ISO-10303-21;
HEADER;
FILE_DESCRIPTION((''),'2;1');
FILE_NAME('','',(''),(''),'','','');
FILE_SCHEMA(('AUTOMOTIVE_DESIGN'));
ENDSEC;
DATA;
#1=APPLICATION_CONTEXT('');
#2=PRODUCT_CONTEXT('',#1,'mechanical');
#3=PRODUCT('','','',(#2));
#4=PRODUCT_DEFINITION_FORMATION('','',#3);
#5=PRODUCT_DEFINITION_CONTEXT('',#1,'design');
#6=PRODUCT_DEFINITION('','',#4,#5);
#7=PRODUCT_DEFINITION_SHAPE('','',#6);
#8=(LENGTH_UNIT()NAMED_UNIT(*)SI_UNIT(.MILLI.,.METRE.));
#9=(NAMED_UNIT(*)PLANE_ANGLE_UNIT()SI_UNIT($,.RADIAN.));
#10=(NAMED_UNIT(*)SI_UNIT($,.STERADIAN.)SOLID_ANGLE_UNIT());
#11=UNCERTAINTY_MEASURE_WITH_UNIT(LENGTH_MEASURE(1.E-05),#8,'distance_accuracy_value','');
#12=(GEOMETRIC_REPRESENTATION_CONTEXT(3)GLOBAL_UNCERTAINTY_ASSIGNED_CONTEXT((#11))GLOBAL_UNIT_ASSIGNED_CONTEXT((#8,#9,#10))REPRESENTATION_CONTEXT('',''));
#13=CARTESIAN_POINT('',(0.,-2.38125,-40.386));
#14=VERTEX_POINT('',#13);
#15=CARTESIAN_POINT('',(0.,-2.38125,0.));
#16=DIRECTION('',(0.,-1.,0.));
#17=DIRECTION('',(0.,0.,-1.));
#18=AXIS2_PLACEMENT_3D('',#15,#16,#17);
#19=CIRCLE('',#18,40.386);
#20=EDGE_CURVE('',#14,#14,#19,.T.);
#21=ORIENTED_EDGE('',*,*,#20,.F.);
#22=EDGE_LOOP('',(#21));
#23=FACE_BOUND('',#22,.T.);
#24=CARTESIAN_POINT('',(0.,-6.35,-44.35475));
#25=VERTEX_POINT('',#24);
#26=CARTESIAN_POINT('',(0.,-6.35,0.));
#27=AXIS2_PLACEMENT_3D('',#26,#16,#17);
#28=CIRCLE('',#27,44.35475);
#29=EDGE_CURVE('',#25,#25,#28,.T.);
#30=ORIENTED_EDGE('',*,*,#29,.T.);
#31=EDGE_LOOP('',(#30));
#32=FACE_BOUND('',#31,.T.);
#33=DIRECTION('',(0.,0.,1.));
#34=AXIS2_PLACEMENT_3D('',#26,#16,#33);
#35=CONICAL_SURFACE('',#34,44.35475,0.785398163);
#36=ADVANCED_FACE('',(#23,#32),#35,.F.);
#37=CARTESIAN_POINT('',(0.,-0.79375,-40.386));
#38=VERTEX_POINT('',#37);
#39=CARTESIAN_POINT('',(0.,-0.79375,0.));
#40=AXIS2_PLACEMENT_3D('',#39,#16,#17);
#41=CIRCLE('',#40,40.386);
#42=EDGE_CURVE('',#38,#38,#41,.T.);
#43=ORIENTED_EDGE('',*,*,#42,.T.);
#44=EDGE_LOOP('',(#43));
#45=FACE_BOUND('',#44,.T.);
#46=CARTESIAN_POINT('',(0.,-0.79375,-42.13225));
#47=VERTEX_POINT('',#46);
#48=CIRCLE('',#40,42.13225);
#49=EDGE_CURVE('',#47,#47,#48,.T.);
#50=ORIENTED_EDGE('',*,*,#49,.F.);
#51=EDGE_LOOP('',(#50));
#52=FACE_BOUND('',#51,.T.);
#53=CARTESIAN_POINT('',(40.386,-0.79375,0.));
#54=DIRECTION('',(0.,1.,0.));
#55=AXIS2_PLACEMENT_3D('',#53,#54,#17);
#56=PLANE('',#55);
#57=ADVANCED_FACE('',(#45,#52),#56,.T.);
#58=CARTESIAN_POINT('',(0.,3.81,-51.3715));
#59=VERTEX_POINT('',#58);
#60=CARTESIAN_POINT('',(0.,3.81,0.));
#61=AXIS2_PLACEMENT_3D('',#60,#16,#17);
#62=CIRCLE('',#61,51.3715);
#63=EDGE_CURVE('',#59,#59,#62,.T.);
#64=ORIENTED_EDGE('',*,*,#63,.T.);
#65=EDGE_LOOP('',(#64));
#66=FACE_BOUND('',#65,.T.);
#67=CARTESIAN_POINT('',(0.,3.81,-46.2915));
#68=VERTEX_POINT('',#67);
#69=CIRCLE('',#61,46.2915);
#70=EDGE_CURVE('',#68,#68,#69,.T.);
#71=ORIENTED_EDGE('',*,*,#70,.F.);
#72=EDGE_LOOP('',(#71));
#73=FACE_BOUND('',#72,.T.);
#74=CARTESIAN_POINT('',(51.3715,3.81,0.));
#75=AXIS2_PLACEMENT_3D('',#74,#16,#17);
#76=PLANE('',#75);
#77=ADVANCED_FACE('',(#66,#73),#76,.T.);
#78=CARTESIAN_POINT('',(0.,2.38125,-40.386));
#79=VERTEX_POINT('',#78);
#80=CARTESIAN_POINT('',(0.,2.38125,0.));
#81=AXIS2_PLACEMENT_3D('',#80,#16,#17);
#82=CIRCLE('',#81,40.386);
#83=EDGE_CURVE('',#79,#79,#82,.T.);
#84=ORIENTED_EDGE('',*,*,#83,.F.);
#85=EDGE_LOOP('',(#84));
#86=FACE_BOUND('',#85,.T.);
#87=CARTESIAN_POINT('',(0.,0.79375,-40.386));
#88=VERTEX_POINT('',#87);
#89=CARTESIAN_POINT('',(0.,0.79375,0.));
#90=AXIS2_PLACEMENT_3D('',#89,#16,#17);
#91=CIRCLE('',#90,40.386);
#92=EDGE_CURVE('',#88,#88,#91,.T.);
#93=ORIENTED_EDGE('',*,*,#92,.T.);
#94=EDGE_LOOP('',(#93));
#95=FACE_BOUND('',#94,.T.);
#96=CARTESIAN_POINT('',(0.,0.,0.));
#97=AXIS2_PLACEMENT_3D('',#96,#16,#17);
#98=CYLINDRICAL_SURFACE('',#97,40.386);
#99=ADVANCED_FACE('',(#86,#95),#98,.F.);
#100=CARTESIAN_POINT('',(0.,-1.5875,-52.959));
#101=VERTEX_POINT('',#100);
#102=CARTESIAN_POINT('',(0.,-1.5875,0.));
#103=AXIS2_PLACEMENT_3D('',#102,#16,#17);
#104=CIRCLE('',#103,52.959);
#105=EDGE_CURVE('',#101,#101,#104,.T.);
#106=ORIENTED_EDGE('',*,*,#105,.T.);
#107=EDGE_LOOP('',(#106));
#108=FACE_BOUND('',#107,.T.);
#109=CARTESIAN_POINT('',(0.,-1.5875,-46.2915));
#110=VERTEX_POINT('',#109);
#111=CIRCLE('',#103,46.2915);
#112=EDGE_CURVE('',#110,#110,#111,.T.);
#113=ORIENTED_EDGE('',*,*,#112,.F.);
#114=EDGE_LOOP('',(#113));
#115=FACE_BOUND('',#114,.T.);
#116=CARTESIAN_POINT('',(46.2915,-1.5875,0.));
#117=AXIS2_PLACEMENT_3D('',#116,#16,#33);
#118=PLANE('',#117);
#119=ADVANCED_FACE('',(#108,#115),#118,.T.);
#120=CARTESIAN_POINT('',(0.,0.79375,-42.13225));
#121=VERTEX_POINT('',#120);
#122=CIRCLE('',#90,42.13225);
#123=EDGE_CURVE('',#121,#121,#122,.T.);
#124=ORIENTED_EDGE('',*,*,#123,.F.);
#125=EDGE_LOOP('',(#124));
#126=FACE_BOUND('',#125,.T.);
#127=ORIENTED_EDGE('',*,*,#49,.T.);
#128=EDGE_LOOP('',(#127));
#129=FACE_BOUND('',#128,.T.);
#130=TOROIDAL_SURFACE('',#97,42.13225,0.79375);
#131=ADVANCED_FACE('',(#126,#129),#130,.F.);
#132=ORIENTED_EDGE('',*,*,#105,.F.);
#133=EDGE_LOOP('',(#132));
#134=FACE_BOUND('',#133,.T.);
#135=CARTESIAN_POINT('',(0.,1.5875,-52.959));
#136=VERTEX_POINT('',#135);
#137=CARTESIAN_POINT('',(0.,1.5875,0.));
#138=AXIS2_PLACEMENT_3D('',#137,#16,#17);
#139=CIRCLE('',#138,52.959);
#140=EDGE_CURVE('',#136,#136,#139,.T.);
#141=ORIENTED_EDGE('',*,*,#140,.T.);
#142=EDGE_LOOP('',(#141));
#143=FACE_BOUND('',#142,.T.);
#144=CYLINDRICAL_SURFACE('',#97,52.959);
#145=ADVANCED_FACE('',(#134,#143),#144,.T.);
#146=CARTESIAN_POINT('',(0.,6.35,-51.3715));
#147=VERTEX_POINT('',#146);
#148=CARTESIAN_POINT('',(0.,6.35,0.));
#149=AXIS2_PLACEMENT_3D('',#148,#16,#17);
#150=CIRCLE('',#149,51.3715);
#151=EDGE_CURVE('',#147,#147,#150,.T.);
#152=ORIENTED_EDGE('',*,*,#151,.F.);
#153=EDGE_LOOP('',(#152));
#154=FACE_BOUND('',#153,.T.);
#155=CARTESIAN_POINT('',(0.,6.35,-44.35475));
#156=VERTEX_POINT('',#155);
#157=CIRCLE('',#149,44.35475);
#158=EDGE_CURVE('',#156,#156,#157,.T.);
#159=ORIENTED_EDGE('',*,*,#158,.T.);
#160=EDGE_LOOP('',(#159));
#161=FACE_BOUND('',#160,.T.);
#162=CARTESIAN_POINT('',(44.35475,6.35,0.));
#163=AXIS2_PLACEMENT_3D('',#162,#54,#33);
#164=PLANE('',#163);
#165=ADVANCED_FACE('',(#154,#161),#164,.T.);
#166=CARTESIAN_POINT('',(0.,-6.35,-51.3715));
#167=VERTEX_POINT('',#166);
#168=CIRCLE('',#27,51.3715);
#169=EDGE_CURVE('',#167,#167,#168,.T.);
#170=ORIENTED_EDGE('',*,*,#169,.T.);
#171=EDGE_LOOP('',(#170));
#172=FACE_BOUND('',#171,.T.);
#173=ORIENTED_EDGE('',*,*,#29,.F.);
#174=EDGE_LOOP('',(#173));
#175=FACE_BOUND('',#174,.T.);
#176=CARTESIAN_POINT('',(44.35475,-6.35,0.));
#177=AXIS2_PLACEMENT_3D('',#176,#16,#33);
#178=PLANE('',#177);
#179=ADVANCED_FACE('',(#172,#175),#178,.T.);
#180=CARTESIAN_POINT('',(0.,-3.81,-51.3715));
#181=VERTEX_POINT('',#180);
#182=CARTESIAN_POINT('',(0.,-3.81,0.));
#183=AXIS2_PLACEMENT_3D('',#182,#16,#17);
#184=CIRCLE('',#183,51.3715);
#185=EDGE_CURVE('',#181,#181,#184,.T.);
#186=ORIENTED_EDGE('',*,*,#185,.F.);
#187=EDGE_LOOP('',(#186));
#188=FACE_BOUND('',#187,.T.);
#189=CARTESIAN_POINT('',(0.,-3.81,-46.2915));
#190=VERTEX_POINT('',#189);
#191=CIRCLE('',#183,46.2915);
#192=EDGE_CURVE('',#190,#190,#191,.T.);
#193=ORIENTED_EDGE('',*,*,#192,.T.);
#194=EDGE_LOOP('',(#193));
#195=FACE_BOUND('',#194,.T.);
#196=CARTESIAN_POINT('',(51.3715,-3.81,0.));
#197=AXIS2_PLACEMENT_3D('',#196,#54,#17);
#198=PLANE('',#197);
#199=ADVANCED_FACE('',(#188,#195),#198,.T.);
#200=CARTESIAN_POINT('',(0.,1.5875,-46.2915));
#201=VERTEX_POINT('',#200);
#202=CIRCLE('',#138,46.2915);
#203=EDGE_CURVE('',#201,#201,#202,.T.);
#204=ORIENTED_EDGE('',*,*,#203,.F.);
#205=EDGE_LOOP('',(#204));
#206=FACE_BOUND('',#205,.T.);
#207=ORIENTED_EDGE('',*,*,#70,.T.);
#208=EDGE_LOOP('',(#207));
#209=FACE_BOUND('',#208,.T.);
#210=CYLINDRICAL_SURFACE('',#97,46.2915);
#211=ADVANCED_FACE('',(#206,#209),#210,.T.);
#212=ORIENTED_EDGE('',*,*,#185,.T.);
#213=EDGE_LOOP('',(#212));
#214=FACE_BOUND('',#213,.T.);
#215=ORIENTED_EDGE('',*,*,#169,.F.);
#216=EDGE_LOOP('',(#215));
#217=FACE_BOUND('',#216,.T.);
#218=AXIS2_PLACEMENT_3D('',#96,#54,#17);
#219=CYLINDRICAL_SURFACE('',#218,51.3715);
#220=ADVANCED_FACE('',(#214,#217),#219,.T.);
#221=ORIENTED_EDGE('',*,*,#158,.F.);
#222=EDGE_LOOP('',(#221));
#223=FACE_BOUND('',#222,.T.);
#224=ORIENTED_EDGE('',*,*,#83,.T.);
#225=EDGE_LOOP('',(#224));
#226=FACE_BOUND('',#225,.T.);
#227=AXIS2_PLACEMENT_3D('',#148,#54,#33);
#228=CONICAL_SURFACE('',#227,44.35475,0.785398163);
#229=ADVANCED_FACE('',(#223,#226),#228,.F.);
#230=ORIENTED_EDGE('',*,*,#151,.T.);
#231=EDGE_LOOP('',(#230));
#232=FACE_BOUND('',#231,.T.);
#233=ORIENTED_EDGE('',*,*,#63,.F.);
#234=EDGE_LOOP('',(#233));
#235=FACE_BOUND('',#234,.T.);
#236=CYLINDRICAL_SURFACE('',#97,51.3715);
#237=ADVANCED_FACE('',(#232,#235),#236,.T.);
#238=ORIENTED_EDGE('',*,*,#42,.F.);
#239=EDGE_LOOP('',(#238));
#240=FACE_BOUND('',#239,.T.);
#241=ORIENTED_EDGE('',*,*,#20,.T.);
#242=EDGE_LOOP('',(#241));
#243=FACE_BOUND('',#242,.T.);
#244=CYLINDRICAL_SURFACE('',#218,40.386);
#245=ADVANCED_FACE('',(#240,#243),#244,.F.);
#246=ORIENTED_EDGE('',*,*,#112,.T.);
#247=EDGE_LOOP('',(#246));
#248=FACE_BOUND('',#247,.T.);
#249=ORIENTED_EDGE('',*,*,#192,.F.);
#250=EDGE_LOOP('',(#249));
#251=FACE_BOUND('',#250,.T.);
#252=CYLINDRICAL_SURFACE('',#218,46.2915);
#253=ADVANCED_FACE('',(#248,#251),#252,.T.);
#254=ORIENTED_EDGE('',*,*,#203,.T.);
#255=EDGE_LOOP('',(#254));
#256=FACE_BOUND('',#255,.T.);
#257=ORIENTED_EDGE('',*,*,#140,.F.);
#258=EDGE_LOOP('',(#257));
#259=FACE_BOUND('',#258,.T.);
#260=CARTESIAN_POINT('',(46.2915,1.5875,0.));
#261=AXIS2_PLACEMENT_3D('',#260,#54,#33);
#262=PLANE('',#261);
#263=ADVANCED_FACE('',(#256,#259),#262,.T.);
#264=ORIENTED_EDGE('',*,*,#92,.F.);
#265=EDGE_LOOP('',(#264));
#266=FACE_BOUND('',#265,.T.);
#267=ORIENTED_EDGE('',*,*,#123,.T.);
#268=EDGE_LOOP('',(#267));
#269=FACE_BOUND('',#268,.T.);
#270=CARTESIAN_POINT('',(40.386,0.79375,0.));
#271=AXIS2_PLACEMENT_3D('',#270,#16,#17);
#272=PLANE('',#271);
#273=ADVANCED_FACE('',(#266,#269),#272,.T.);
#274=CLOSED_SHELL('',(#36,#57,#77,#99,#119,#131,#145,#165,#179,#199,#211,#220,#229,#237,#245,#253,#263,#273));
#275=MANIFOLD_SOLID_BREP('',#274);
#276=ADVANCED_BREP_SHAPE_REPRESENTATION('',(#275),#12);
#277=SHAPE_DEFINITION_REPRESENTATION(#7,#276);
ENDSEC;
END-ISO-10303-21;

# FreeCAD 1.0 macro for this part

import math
import FreeCAD as App
import Part
import Sketcher
Q = App.Units.Quantity

doc = App.newDocument("Part")
body = doc.addObject("PartDesign::Body", "Body")

sketch1 = body.newObject("Sketcher::SketchObject", "Sketch")
sketch1.AttachmentSupport = (doc.getObject("XY_Plane"), [""])
sketch1.MapMode = "FlatFace"
sketch1.addGeometry([
    Part.LineSegment(App.Vector(40.4, 2.4, 0), App.Vector(40.4, 0.8, 0)),
    Part.LineSegment(App.Vector(40.4, 0.8, 0), App.Vector(42.1, 0.8, 0)),
    Part.ArcOfCircle(Part.Circle(App.Vector(42.1, 0, 0), App.Vector(0, 0, 1), 0.8), math.radians(0), math.radians(90)),
    Part.LineSegment(App.Vector(42.9, 0, 0), App.Vector(53, 0, 0)),
    Part.LineSegment(App.Vector(53, 0, 0), App.Vector(53, 1.6, 0)),
    Part.LineSegment(App.Vector(53, 1.6, 0), App.Vector(46.3, 1.6, 0)),
    Part.LineSegment(App.Vector(46.3, 1.6, 0), App.Vector(46.3, 3.8, 0)),
    Part.LineSegment(App.Vector(46.3, 3.8, 0), App.Vector(51.4, 3.8, 0)),
    Part.LineSegment(App.Vector(51.4, 3.8, 0), App.Vector(51.4, 6.3, 0)),
    Part.LineSegment(App.Vector(51.4, 6.3, 0), App.Vector(44.4, 6.3, 0)),
    Part.LineSegment(App.Vector(44.4, 6.3, 0), App.Vector(40.4, 2.4, 0)),
], False)
sketch1.addConstraint([
    Sketcher.Constraint("Coincident", 0, 2, 1, 1),
    Sketcher.Constraint("Tangent", 1, 2, 2, 2),
    Sketcher.Constraint("Coincident", 2, 1, 3, 1),
    Sketcher.Constraint("Coincident", 3, 2, 4, 1),
    Sketcher.Constraint("Coincident", 4, 2, 5, 1),
    Sketcher.Constraint("Coincident", 5, 2, 6, 1),
    Sketcher.Constraint("Coincident", 6, 2, 7, 1),
    Sketcher.Constraint("Coincident", 7, 2, 8, 1),
    Sketcher.Constraint("Coincident", 8, 2, 9, 1),
    Sketcher.Constraint("Coincident", 9, 2, 10, 1),
    Sketcher.Constraint("Coincident", 10, 2, 0, 1),
    Sketcher.Constraint("Vertical", 0),
    Sketcher.Constraint("Horizontal", 1),
    Sketcher.Constraint("Horizontal", 3),
    Sketcher.Constraint("Vertical", 4),
    Sketcher.Constraint("Horizontal", 5),
    Sketcher.Constraint("Vertical", 6),
    Sketcher.Constraint("Horizontal", 7),
    Sketcher.Constraint("Vertical", 8),
    Sketcher.Constraint("Horizontal", 9),
    Sketcher.Constraint("PointOnObject", 2, 3, -1),
    Sketcher.Constraint("PointOnObject", 2, 1, -1),
    Sketcher.Constraint("Equal", 0, 4),
    Sketcher.Constraint("DistanceX", 7, 1, 7, 2, Q("0.2 in")),
    Sketcher.Constraint("DistanceY", 8, 1, 8, 2, Q("0.1 in")),
    Sketcher.Constraint("Angle", 10, Q("-135 deg")),
    Sketcher.Constraint("Radius", 2, Q("0.03125 in")),
    Sketcher.Constraint("DistanceX", 0, 2, 2, 1, Q("0.1 in")),
    Sketcher.Constraint("DistanceX", 3, 1, 3, 2, Q("0.395 in")),
    Sketcher.Constraint("DistanceY", 0, 2, 0, 1, Q("0.0625 in")),
    Sketcher.Constraint("DistanceX", -1, 1, 0, 2, Q("1.59 in")),
    Sketcher.Constraint("DistanceY", -1, 1, 6, 2, Q("0.15 in")),
    Sketcher.Constraint("DistanceX", 5, 2, 5, 1, Q("0.2625 in")),
])
revolution = body.newObject("PartDesign::Revolution", "Revolution")
revolution.Profile = sketch1
revolution.ReferenceAxis = (sketch1, ["V_Axis"])
revolution.Angle = 360
doc.recompute()

mirrored = body.newObject("PartDesign::Mirrored", "Mirrored")
mirrored.Originals = [revolution]
mirrored.MirrorPlane = (doc.getObject("XZ_Plane"), [""])
body.Tip = mirrored

doc.recompute()
